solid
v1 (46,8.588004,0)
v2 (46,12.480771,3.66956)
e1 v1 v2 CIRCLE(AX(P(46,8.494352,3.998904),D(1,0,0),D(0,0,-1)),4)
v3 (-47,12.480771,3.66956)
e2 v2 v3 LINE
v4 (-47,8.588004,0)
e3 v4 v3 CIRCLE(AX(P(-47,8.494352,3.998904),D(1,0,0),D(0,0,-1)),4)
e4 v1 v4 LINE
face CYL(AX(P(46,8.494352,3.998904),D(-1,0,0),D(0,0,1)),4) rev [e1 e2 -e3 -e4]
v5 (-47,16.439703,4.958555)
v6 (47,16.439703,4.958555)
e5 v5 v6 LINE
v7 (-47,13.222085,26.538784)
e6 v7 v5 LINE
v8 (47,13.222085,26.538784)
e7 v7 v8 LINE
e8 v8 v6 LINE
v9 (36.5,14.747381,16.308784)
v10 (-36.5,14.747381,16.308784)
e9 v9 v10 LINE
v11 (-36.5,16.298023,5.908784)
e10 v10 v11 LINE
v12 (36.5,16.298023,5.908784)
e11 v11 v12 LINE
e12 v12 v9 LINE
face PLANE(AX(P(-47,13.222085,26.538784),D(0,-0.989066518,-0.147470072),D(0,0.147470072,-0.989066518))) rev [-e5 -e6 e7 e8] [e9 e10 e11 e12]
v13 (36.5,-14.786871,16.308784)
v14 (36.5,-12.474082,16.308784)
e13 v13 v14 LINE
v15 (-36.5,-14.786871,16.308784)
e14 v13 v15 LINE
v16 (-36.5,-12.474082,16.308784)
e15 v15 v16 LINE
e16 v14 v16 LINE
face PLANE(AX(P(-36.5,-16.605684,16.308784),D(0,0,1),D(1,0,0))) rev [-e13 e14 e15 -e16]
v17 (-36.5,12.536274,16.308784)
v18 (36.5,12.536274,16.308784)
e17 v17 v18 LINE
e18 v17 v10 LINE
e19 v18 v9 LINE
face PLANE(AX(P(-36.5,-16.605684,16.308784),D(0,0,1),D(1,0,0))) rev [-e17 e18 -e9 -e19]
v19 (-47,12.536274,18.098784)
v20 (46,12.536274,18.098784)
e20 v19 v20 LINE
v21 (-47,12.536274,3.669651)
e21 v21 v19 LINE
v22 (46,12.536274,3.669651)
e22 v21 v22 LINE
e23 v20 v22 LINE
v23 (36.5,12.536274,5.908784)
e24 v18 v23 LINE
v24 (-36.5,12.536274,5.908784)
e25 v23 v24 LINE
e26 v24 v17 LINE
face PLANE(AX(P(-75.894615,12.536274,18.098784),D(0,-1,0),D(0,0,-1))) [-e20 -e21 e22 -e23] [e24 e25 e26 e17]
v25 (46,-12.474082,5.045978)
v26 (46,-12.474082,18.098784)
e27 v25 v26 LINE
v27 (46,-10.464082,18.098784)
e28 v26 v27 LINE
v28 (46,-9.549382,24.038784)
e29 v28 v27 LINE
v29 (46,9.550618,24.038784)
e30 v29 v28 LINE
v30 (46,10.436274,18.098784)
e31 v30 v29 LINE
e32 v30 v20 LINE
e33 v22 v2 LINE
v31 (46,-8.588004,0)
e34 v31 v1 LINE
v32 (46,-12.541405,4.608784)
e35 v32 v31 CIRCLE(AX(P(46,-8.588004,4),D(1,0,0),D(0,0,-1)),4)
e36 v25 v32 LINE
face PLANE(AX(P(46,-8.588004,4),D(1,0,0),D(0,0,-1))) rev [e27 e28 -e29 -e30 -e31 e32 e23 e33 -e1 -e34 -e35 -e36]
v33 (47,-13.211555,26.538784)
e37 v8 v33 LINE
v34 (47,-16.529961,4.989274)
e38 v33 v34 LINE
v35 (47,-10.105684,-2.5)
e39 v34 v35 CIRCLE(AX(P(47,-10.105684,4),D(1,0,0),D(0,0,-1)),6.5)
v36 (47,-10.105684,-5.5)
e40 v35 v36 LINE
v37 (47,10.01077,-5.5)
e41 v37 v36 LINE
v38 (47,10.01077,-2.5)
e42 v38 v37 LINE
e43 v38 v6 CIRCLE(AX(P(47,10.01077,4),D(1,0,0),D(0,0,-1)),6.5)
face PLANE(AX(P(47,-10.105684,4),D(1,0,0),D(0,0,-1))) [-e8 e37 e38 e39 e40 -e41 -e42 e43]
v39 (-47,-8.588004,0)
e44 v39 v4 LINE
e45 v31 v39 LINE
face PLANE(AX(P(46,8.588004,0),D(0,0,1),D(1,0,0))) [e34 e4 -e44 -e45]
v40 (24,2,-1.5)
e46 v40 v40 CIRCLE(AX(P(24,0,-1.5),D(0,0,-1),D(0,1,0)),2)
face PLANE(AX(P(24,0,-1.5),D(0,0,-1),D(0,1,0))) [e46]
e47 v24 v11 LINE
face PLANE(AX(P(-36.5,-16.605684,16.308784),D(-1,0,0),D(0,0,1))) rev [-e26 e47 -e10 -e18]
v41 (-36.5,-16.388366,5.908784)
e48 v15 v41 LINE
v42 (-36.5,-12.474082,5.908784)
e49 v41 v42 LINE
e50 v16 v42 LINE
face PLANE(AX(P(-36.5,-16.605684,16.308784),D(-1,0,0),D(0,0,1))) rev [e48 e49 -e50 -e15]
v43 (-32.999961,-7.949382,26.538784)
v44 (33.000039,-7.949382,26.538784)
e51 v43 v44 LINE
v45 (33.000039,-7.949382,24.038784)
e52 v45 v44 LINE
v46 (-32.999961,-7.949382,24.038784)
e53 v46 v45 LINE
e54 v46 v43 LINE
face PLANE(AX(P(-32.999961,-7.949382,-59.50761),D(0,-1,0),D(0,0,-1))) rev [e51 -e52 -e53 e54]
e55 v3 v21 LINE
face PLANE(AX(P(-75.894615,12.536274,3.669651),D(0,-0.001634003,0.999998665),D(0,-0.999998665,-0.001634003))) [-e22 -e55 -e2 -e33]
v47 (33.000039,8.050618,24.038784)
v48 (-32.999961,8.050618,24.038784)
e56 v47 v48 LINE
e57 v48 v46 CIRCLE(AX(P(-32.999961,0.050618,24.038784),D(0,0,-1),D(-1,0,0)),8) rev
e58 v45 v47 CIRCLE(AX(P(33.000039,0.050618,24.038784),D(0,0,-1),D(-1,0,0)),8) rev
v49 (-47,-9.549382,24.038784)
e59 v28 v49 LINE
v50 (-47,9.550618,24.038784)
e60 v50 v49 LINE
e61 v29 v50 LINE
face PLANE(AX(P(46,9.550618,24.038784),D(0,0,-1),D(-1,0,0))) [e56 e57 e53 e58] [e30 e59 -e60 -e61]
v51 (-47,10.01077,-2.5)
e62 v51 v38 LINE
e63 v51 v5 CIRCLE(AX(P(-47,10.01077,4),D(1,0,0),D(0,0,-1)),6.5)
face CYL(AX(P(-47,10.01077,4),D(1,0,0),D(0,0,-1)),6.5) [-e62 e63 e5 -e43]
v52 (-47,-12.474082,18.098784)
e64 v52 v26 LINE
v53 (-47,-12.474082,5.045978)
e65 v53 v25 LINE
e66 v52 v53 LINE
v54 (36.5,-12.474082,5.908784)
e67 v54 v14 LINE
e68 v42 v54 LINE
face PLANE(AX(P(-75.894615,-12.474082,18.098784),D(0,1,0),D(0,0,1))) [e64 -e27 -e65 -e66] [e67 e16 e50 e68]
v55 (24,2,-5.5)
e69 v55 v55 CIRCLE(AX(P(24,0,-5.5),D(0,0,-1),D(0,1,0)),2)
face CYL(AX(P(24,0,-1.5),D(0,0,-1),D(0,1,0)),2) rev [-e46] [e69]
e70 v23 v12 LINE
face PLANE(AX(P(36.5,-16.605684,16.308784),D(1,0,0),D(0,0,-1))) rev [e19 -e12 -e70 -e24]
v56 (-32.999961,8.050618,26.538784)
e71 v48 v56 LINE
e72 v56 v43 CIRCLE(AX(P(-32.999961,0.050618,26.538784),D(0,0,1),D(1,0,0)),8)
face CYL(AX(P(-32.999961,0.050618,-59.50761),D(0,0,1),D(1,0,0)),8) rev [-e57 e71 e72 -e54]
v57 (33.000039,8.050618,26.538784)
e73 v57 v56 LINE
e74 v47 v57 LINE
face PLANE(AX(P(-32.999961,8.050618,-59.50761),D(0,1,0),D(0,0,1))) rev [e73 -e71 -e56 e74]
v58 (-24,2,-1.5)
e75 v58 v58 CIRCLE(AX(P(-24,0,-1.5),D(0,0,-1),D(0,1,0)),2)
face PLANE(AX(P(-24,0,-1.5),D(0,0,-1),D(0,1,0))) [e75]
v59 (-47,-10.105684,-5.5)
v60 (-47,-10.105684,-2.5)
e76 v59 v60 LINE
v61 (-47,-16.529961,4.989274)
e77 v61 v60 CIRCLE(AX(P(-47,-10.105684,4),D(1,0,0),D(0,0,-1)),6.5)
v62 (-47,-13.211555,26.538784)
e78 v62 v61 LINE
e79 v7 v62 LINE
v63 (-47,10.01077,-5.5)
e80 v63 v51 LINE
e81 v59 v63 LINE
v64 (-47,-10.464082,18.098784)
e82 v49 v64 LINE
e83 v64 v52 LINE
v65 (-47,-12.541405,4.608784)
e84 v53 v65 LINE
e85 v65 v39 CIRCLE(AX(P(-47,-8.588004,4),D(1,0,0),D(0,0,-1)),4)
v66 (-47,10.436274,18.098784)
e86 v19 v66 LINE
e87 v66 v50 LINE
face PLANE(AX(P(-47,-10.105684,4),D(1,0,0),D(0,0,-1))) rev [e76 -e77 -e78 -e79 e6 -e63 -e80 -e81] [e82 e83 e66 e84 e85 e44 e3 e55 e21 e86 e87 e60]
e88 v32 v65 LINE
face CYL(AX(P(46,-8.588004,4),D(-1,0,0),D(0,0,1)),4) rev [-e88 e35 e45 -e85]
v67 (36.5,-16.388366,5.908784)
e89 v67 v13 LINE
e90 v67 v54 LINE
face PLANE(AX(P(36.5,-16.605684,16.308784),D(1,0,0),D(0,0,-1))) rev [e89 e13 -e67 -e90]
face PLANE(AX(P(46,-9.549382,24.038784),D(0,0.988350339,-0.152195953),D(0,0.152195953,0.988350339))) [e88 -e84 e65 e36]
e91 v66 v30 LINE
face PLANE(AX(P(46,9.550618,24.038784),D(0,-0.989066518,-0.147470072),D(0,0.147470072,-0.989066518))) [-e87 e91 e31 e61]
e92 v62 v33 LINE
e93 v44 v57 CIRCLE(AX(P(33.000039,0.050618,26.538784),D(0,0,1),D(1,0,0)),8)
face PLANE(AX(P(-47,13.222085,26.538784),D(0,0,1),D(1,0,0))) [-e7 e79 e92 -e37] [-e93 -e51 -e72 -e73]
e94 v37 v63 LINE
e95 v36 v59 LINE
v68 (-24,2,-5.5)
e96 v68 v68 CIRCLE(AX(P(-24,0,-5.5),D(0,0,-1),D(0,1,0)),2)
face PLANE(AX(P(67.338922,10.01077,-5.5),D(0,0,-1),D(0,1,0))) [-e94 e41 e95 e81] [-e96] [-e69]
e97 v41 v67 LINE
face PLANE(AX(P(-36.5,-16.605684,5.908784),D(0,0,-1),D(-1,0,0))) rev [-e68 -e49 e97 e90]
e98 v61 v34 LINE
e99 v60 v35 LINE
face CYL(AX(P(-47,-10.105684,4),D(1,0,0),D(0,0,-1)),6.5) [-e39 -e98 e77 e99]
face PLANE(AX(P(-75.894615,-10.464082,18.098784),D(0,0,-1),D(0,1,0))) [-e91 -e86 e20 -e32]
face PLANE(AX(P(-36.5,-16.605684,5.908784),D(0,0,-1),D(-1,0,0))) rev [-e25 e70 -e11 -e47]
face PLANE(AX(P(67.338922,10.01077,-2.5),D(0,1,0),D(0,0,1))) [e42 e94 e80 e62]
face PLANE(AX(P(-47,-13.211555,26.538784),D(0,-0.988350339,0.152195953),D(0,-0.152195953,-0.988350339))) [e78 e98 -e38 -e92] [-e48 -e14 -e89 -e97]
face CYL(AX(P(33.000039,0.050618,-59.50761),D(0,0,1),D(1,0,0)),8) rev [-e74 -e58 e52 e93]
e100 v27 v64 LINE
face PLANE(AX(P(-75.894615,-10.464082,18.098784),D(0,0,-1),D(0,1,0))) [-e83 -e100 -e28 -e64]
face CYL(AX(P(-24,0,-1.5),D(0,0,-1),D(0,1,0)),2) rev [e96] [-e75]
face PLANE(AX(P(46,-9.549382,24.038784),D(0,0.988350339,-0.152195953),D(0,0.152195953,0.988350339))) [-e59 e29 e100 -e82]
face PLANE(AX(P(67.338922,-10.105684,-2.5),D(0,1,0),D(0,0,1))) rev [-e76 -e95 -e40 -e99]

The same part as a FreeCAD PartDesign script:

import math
import FreeCAD as App
import Part
import Sketcher
from FreeCAD import Vector
Q = App.Units.Quantity

doc = App.newDocument("Part")
body = doc.addObject("PartDesign::Body", "Body")

# Sketch on YZ plane
sketch1 = body.newObject("Sketcher::SketchObject", "Sketch")
sketch1.AttachmentSupport = (doc.getObject("YZ_Plane"), [""])
sketch1.MapMode = "FlatFace"
sketch1.addGeometry(Part.LineSegment(Vector(13.222085, 26.538784, 0), Vector(-13.211555, 26.538784, 0)), False)
sketch1.addGeometry(Part.LineSegment(Vector(-13.211555, 26.538784, 0), Vector(-16.529961, 4.989274, 0)), False)
sketch1.addGeometry(Part.ArcOfCircle(Part.Circle(Vector(-10.105684, 4, 0), Vector(0, 0, 1), 6.5), math.radians(171.245793), math.radians(270)), False)
sketch1.addGeometry(Part.LineSegment(Vector(-10.105684, -2.5, 0), Vector(10.01077, -2.5, 0)), False)
sketch1.addGeometry(Part.ArcOfCircle(Part.Circle(Vector(10.01077, 4, 0), Vector(0, 0, 1), 6.5), math.radians(-90), math.radians(8.480342)), False)
sketch1.addGeometry(Part.LineSegment(Vector(16.439703, 4.958555, 0), Vector(13.222085, 26.538784, 0)), False)
sketch1.addConstraint(Sketcher.Constraint("Coincident", 0, 2, 1, 1))
sketch1.addConstraint(Sketcher.Constraint("Coincident", 1, 2, 2, 1))
sketch1.addConstraint(Sketcher.Constraint("Coincident", 2, 2, 3, 1))
sketch1.addConstraint(Sketcher.Constraint("Coincident", 3, 2, 4, 1))
sketch1.addConstraint(Sketcher.Constraint("Coincident", 4, 2, 5, 1))
sketch1.addConstraint(Sketcher.Constraint("Coincident", 5, 2, 0, 1))
sketch1.addConstraint(Sketcher.Constraint("Horizontal", 0))
sketch1.addConstraint(Sketcher.Constraint("Horizontal", 3))
sketch1.addConstraint(Sketcher.Constraint("Radius", 2, Q("6.5 mm")))
sketch1.addConstraint(Sketcher.Constraint("Radius", 4, Q("6.5 mm")))
sketch1.addConstraint(Sketcher.Constraint("DistanceY", -1, 1, 2, 3, Q("4 mm")))
sketch1.addConstraint(Sketcher.Constraint("DistanceX", 0, 2, 0, 1, Q("26.43364 mm")))
sketch1.addConstraint(Sketcher.Constraint("DistanceX", 3, 1, 3, 2, Q("20.116455 mm")))
sketch1.addConstraint(Sketcher.Constraint("DistanceX", -1, 1, 4, 3, Q("10.01077 mm")))
sketch1.addConstraint(Sketcher.Constraint("DistanceX", 1, 2, -1, 1, Q("16.529961 mm")))
sketch1.addConstraint(Sketcher.Constraint("DistanceX", -1, 1, 3, 2, Q("10.01077 mm")))
sketch1.addConstraint(Sketcher.Constraint("DistanceX", 0, 2, 2, 3, Q("3.105871 mm")))
sketch1.addConstraint(Sketcher.Constraint("DistanceY", 1, 2, 0, 2, Q("21.54951 mm")))
sketch1.addConstraint(Sketcher.Constraint("DistanceX", 0, 2, 2, 2, Q("3.105871 mm")))
sketch1.addConstraint(Sketcher.Constraint("DistanceY", 4, 2, 1, 2, Q("0.030718 mm")))
pad1 = body.newObject("PartDesign::Pad", "Pad")
pad1.Profile = sketch1
pad1.Type = "TwoLengths"
pad1.Length = 47
pad1.Length2 = 47

# Sketch on YZ plane
sketch2 = body.newObject("Sketcher::SketchObject", "Sketch001")
sketch2.AttachmentSupport = (doc.getObject("YZ_Plane"), [""])
sketch2.MapMode = "FlatFace"
sketch2.addGeometry(Part.LineSegment(Vector(12.450618, 4.588784, 0), Vector(9.550618, 24.038784, 0)), False)
sketch2.addGeometry(Part.LineSegment(Vector(9.550618, 24.038784, 0), Vector(-9.549382, 24.038784, 0)), False)
sketch2.addGeometry(Part.LineSegment(Vector(-9.549382, 24.038784, 0), Vector(-12.541405, 4.608784, 0)), False)
sketch2.addGeometry(Part.ArcOfCircle(Part.Circle(Vector(-8.588004, 4, 0), Vector(0, 0, 1), 4), math.radians(171.245793), math.radians(270)), False)
sketch2.addGeometry(Part.LineSegment(Vector(-8.588004, 0, 0), Vector(8.588004, 0, 0)), False)
sketch2.addGeometry(Part.ArcOfCircle(Part.Circle(Vector(8.494352, 3.998904, 0), Vector(0, 0, 1), 4), math.radians(-88.658419), math.radians(8.480342)), False)
sketch2.addConstraint(Sketcher.Constraint("Coincident", 0, 2, 1, 1))
sketch2.addConstraint(Sketcher.Constraint("Coincident", 1, 2, 2, 1))
sketch2.addConstraint(Sketcher.Constraint("Tangent", 2, 2, 3, 1))
sketch2.addConstraint(Sketcher.Constraint("Tangent", 3, 2, 4, 1))
sketch2.addConstraint(Sketcher.Constraint("Coincident", 4, 2, 5, 1))
sketch2.addConstraint(Sketcher.Constraint("Tangent", 5, 2, 0, 1))
sketch2.addConstraint(Sketcher.Constraint("Horizontal", 1))
sketch2.addConstraint(Sketcher.Constraint("Horizontal", 4))
sketch2.addConstraint(Sketcher.Constraint("Equal", 3, 5))
sketch2.addConstraint(Sketcher.Constraint("Symmetric", 3, 2, 4, 2, -1, 1))
sketch2.addConstraint(Sketcher.Constraint("Radius", 3, Q("4 mm")))
sketch2.addConstraint(Sketcher.Constraint("DistanceX", 1, 2, 1, 1, Q("19.1 mm")))
sketch2.addConstraint(Sketcher.Constraint("DistanceX", 0, 2, 5, 2, Q("2.9 mm")))
sketch2.addConstraint(Sketcher.Constraint("DistanceY", 2, 2, 1, 2, Q("19.43 mm")))
sketch2.addConstraint(Sketcher.Constraint("DistanceY", 5, 2, 0, 2, Q("19.45 mm")))
sketch2.addConstraint(Sketcher.Constraint("Distance", 2, Q("19.659021 mm")))
pocket1 = body.newObject("PartDesign::Pocket", "Pocket")
pocket1.Profile = sketch2
pocket1.Type = "TwoLengths"
pocket1.Length = 46
pocket1.Length2 = 57.471726
pocket1.Reversed = True

# Sketch on XY plane
sketch3 = body.newObject("Sketcher::SketchObject", "Sketch002")
sketch3.AttachmentSupport = (doc.getObject("XY_Plane"), [""])
sketch3.MapMode = "FlatFace"
sketch3.AttachmentOffset = App.Placement(Vector(0, 0, 26.538784), App.Rotation())
sketch3.addGeometry(Part.LineSegment(Vector(33.000039, 8.050618, 0), Vector(-32.999961, 8.050618, 0)), False)
sketch3.addGeometry(Part.ArcOfCircle(Part.Circle(Vector(-32.999961, 0.050618, 0), Vector(0, 0, 1), 8), math.radians(90), math.radians(270)), False)
sketch3.addGeometry(Part.LineSegment(Vector(-32.999961, -7.949382, 0), Vector(33.000039, -7.949382, 0)), False)
sketch3.addGeometry(Part.ArcOfCircle(Part.Circle(Vector(33.000039, 0.050618, 0), Vector(0, 0, 1), 8), math.radians(-90), math.radians(90)), False)
sketch3.addConstraint(Sketcher.Constraint("Tangent", 0, 2, 1, 1))
sketch3.addConstraint(Sketcher.Constraint("Tangent", 1, 2, 2, 1))
sketch3.addConstraint(Sketcher.Constraint("Tangent", 2, 2, 3, 1))
sketch3.addConstraint(Sketcher.Constraint("Tangent", 3, 2, 0, 1))
sketch3.addConstraint(Sketcher.Constraint("Horizontal", 0))
sketch3.addConstraint(Sketcher.Constraint("Horizontal", 2))
sketch3.addConstraint(Sketcher.Constraint("Radius", 1, Q("8 mm")))
sketch3.addConstraint(Sketcher.Constraint("DistanceX", 0, 2, 0, 1, Q("66 mm")))
sketch3.addConstraint(Sketcher.Constraint("DistanceX", 1, 3, -1, 1, Q("32.999961 mm")))
sketch3.addConstraint(Sketcher.Constraint("DistanceY", -1, 1, 1, 3, Q("0.050618 mm")))
pocket2 = body.newObject("PartDesign::Pocket", "Pocket001")
pocket2.Profile = sketch3
pocket2.Type = "TwoLengths"
pocket2.Length = 58.688818
pocket2.Length2 = 2.5
pocket2.Reversed = True

# Sketch on XZ plane
sketch4 = body.newObject("Sketcher::SketchObject", "Sketch003")
sketch4.AttachmentSupport = (doc.getObject("XZ_Plane"), [""])
sketch4.MapMode = "FlatFace"
sketch4.addGeometry(Part.LineSegment(Vector(-36.5, 5.908784, 0), Vector(-36.5, 16.308784, 0)), False)
sketch4.addGeometry(Part.LineSegment(Vector(-36.5, 16.308784, 0), Vector(36.5, 16.308784, 0)), False)
sketch4.addGeometry(Part.LineSegment(Vector(36.5, 16.308784, 0), Vector(36.5, 5.908784, 0)), False)
sketch4.addGeometry(Part.LineSegment(Vector(36.5, 5.908784, 0), Vector(-36.5, 5.908784, 0)), False)
sketch4.addConstraint(Sketcher.Constraint("Coincident", 0, 2, 1, 1))
sketch4.addConstraint(Sketcher.Constraint("Coincident", 1, 2, 2, 1))
sketch4.addConstraint(Sketcher.Constraint("Coincident", 2, 2, 3, 1))
sketch4.addConstraint(Sketcher.Constraint("Coincident", 3, 2, 0, 1))
sketch4.addConstraint(Sketcher.Constraint("Vertical", 0))
sketch4.addConstraint(Sketcher.Constraint("Horizontal", 1))
sketch4.addConstraint(Sketcher.Constraint("Vertical", 2))
sketch4.addConstraint(Sketcher.Constraint("Horizontal", 3))
sketch4.addConstraint(Sketcher.Constraint("DistanceX", 1, 1, 1, 2, Q("73 mm")))
sketch4.addConstraint(Sketcher.Constraint("DistanceY", 0, 1, 0, 2, Q("10.4 mm")))
sketch4.addConstraint(Sketcher.Constraint("DistanceX", 0, 2, -1, 1, Q("36.5 mm")))
sketch4.addConstraint(Sketcher.Constraint("DistanceY", -1, 1, 0, 2, Q("16.308784 mm")))
pocket3 = body.newObject("PartDesign::Pocket", "Pocket002")
pocket3.Profile = sketch4
pocket3.Type = "ThroughAll"
pocket3.Midplane = True

# Sketch on YZ plane
sketch5 = body.newObject("Sketcher::SketchObject", "Sketch004")
sketch5.AttachmentSupport = (doc.getObject("YZ_Plane"), [""])
sketch5.MapMode = "FlatFace"
sketch5.AttachmentOffset = App.Placement(Vector(0, 0, 46), App.Rotation())
sketch5.addGeometry(Part.LineSegment(Vector(-12.474082, 18.098784, 0), Vector(12.536274, 18.098784, 0)), False)
sketch5.addGeometry(Part.LineSegment(Vector(12.536274, 18.098784, 0), Vector(12.536274, 3.669651, 0)), False)
sketch5.addGeometry(Part.LineSegment(Vector(12.536274, 3.669651, 0), Vector(-12.474082, 3.628784, 0)), False)
sketch5.addGeometry(Part.LineSegment(Vector(-12.474082, 3.628784, 0), Vector(-12.474082, 18.098784, 0)), False)
sketch5.addConstraint(Sketcher.Constraint("Coincident", 0, 2, 1, 1))
sketch5.addConstraint(Sketcher.Constraint("Coincident", 1, 2, 2, 1))
sketch5.addConstraint(Sketcher.Constraint("Coincident", 2, 2, 3, 1))
sketch5.addConstraint(Sketcher.Constraint("Coincident", 3, 2, 0, 1))
sketch5.addConstraint(Sketcher.Constraint("Horizontal", 0))
sketch5.addConstraint(Sketcher.Constraint("Vertical", 1))
sketch5.addConstraint(Sketcher.Constraint("Vertical", 3))
sketch5.addConstraint(Sketcher.Constraint("DistanceY", 3, 1, 3, 2, Q("14.47 mm")))
sketch5.addConstraint(Sketcher.Constraint("Distance", 2, Q("25.010389 mm")))
sketch5.addConstraint(Sketcher.Constraint("DistanceY", 1, 2, 1, 1, Q("14.429133 mm")))
sketch5.addConstraint(Sketcher.Constraint("DistanceY", -1, 1, 1, 2, Q("3.669651 mm")))
sketch5.addConstraint(Sketcher.Constraint("DistanceX", 2, 2, -1, 1, Q("12.474082 mm")))
pocket4 = body.newObject("PartDesign::Pocket", "Pocket003")
pocket4.Profile = sketch5
pocket4.Length = 93

# Sketch on YZ plane
sketch6 = body.newObject("Sketcher::SketchObject", "Sketch005")
sketch6.AttachmentSupport = (doc.getObject("YZ_Plane"), [""])
sketch6.MapMode = "FlatFace"
sketch6.AttachmentOffset = App.Placement(Vector(0, 0, -47), App.Rotation())
sketch6.addGeometry(Part.LineSegment(Vector(10.01077, -2.5, 0), Vector(-10.105684, -2.5, 0)), False)
sketch6.addGeometry(Part.LineSegment(Vector(-10.105684, -2.5, 0), Vector(-10.105684, -5.5, 0)), False)
sketch6.addGeometry(Part.LineSegment(Vector(-10.105684, -5.5, 0), Vector(10.01077, -5.5, 0)), False)
sketch6.addGeometry(Part.LineSegment(Vector(10.01077, -5.5, 0), Vector(10.01077, -2.5, 0)), False)
sketch6.addConstraint(Sketcher.Constraint("Coincident", 0, 2, 1, 1))
sketch6.addConstraint(Sketcher.Constraint("Coincident", 1, 2, 2, 1))
sketch6.addConstraint(Sketcher.Constraint("Coincident", 2, 2, 3, 1))
sketch6.addConstraint(Sketcher.Constraint("Coincident", 3, 2, 0, 1))
sketch6.addConstraint(Sketcher.Constraint("Horizontal", 0))
sketch6.addConstraint(Sketcher.Constraint("Vertical", 1))
sketch6.addConstraint(Sketcher.Constraint("Horizontal", 2))
sketch6.addConstraint(Sketcher.Constraint("Vertical", 3))
sketch6.addConstraint(Sketcher.Constraint("DistanceY", 1, 2, 1, 1, Q("3 mm")))
sketch6.addConstraint(Sketcher.Constraint("DistanceY", 0, 2, -1, 1, Q("2.5 mm")))
sketch6.addConstraint(Sketcher.Constraint("DistanceX", 0, 2, 0, 1, Q("20.116455 mm")))
sketch6.addConstraint(Sketcher.Constraint("DistanceX", -1, 1, 2, 2, Q("10.01077 mm")))
pad2 = body.newObject("PartDesign::Pad", "Pad001")
pad2.Profile = sketch6
pad2.Length = 94

# Sketch on XY plane
sketch7 = body.newObject("Sketcher::SketchObject", "Sketch006")
sketch7.AttachmentSupport = (doc.getObject("XY_Plane"), [""])
sketch7.MapMode = "FlatFace"
sketch7.AttachmentOffset = App.Placement(Vector(0, 0, -5.5), App.Rotation())
sketch7.addGeometry(Part.Circle(Vector(24, 0, 0), Vector(0, 0, 1), 2), False)
sketch7.addGeometry(Part.Circle(Vector(-24, 0, 0), Vector(0, 0, 1), 2), False)
sketch7.addConstraint(Sketcher.Constraint("Equal", 0, 1))
sketch7.addConstraint(Sketcher.Constraint("Symmetric", 0, 3, 1, 3, -1, 1))
sketch7.addConstraint(Sketcher.Constraint("PointOnObject", 0, 3, -1))
sketch7.addConstraint(Sketcher.Constraint("Diameter", 0, Q("4 mm")))
sketch7.addConstraint(Sketcher.Constraint("DistanceX", -1, 1, 0, 3, Q("24 mm")))
pocket5 = body.newObject("PartDesign::Pocket", "Pocket004")
pocket5.Profile = sketch7
pocket5.Length = 4
pocket5.Reversed = True

doc.recompute()
